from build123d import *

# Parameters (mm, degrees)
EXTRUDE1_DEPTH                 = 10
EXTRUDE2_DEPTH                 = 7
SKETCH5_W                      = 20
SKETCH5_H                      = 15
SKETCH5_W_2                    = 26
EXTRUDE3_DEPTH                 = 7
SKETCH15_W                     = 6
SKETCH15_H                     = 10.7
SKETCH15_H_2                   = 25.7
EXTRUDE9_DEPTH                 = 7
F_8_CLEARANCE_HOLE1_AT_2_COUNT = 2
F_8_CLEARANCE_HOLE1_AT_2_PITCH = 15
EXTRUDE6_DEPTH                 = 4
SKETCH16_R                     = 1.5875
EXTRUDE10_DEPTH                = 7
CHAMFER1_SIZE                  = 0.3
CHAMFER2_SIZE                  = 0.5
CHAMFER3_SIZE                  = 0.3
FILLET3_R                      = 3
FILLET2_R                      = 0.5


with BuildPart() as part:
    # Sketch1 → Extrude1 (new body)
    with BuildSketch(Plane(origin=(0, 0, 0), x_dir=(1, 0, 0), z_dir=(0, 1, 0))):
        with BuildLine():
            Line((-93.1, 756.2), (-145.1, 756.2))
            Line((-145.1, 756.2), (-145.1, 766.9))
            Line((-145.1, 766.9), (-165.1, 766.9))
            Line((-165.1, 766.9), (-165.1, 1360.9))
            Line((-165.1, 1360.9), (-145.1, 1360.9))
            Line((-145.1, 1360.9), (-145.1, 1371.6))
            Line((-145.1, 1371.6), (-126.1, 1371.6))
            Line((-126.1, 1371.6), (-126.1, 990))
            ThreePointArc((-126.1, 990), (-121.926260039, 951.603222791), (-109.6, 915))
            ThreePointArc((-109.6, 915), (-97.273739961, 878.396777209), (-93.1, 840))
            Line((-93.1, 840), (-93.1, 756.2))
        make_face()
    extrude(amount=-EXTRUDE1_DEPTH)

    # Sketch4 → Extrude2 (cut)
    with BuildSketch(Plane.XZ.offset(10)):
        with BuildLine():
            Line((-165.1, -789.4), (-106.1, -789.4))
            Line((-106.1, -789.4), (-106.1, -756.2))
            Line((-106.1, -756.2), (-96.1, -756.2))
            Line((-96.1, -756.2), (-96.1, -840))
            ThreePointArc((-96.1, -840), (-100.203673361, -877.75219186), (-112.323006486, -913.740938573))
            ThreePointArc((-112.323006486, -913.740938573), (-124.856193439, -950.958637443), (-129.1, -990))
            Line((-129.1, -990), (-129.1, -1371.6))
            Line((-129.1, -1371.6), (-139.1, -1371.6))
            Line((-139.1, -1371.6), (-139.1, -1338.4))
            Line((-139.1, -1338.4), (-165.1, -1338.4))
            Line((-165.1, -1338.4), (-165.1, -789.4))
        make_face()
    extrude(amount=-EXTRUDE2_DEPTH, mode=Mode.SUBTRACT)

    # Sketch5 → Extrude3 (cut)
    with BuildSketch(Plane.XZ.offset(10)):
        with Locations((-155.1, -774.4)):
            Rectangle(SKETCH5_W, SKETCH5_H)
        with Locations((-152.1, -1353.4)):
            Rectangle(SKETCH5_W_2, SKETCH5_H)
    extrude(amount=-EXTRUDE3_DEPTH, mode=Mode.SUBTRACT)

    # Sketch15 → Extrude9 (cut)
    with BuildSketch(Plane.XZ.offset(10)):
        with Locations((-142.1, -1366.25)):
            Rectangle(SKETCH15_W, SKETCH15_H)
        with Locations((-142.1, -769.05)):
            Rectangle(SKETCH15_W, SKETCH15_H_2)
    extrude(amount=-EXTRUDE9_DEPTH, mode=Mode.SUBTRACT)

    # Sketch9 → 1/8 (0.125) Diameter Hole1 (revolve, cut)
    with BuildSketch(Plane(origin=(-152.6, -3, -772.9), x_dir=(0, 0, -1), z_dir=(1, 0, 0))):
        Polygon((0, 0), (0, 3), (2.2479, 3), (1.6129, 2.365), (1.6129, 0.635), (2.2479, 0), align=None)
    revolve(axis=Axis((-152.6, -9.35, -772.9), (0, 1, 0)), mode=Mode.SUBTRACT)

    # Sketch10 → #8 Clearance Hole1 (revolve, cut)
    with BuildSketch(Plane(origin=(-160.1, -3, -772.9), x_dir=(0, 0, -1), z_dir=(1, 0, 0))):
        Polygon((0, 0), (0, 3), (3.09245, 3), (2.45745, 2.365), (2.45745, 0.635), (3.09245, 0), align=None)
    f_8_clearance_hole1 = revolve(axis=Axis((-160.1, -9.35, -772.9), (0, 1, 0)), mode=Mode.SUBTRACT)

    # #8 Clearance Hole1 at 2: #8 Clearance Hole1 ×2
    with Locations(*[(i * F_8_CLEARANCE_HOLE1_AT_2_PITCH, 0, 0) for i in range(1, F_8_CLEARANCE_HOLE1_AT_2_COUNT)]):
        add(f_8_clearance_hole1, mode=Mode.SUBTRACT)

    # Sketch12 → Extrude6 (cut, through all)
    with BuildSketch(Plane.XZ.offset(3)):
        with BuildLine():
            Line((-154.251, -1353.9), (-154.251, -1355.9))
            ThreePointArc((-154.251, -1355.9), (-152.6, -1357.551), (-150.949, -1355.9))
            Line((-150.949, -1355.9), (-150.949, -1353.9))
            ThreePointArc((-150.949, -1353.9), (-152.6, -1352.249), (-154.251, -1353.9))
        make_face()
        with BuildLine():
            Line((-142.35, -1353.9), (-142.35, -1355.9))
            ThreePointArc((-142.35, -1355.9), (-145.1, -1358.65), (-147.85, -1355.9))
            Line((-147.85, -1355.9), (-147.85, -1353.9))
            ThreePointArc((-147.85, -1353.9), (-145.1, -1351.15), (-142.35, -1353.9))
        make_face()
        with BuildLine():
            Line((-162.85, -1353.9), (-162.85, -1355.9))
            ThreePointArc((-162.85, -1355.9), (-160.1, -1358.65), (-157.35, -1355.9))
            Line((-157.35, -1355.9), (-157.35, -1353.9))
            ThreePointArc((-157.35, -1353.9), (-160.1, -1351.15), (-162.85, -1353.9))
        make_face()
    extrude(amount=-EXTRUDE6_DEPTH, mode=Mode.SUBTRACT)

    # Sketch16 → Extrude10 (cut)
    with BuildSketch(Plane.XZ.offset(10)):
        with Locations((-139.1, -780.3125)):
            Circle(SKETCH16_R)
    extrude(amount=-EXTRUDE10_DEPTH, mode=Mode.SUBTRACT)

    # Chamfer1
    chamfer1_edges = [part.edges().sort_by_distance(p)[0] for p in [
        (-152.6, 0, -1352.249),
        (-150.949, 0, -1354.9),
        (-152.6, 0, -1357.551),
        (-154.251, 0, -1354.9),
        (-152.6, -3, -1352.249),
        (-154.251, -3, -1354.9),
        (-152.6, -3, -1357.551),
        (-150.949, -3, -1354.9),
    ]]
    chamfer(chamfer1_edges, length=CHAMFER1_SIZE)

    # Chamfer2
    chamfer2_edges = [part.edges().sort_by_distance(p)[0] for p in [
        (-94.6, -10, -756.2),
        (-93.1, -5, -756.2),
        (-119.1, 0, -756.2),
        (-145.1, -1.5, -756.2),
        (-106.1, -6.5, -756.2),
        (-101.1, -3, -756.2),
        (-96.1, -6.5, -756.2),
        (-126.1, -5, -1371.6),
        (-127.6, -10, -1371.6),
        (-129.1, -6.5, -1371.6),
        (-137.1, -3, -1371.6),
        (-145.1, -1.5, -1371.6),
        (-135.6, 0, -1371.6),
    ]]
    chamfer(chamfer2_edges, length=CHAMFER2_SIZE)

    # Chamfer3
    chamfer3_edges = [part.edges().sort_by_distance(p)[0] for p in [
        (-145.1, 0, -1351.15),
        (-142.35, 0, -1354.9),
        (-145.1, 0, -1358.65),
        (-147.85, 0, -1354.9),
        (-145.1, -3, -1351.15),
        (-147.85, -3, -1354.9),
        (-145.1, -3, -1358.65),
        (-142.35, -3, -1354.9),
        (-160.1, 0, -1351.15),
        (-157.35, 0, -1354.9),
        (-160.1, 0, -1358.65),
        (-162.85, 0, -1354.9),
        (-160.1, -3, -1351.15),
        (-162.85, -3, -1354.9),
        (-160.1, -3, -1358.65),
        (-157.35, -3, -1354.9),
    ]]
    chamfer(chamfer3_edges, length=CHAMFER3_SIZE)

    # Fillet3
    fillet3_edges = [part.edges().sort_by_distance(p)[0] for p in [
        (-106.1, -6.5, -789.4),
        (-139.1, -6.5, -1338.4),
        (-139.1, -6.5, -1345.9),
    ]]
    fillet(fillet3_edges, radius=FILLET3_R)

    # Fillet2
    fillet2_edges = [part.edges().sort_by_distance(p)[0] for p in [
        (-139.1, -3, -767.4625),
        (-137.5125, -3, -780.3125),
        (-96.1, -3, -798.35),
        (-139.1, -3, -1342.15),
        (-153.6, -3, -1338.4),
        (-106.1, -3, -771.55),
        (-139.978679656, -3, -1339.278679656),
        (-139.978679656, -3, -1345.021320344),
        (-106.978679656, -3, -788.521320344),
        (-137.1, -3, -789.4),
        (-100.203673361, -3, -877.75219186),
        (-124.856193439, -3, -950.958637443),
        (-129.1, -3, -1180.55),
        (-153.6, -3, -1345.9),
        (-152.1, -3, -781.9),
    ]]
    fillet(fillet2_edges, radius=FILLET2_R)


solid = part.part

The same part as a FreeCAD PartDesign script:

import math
import FreeCAD as App
import Part
import Sketcher

V = App.Vector
Q = App.Units.Quantity


def edges_at(feature, points):
    """Names of the edges that pass closest to the given points."""
    edges = feature.Shape.Edges
    near = lambda p: min(range(len(edges)), key=lambda i: edges[i].distToShape(Part.Vertex(*p))[0])
    return sorted({f"Edge{near(p) + 1}" for p in points})


def add_polygon(sketch, points):
    """Adds a closed chain of lines whose ends are joined by coincident constraints."""
    first, n = sketch.GeometryCount, len(points)
    for a, b in zip(points, points[1:] + points[:1]):
        sketch.addGeometry(Part.LineSegment(App.Vector(*a, 0), App.Vector(*b, 0)), False)
    for i in range(n):
        sketch.addConstraint(Sketcher.Constraint("Coincident", first + i, 2, first + (i + 1) % n, 1))

doc = App.newDocument("Part")
params = doc.addObject("Spreadsheet::Sheet", "Params")
for row, (alias, value) in enumerate([
    ("sketch1_width", "52 mm"),
    ("sketch1_width2", "19 mm"),
    ("sketch1_width3", "20 mm"),
    ("sketch1_height", "594 mm"),
    ("sketch1_height2", "83.8 mm"),
    ("pad1_length", "10 mm"),
    ("sketch2_width", "59 mm"),
    ("sketch2_width2", "26 mm"),
    ("sketch2_width3", "10 mm"),
    ("sketch2_height", "549 mm"),
    ("sketch2_height2", "33.2 mm"),
    ("pocket1_length", "7 mm"),
    ("sketch3_width", "20 mm"),
    ("sketch3_width2", "26 mm"),
    ("sketch3_height", "15 mm"),
    ("pocket2_length", "7 mm"),
    ("sketch4_width", "6 mm"),
    ("sketch4_height", "10.7 mm"),
    ("sketch4_height2", "25.7 mm"),
    ("pocket3_length", "7 mm"),
    ("sketch5_width", "3 mm"),
    ("sketch5_width2", "1.73 mm"),
    ("groove_angle", "360 deg"),
    ("sketch6_width", "3 mm"),
    ("sketch6_width2", "1.73 mm"),
    ("groove2_angle", "360 deg"),
    ("linearpattern_pitch", "15 mm"),
    ("sketch7_height", "2 mm"),
    ("sketch7_radius", "2.75 mm"),
    ("pocket5_length", "7 mm"),
    ("chamfer_size", "0.3 mm"),
    ("chamfer2_size", "0.5 mm"),
    ("chamfer3_size", "0.3 mm"),
    ("fillet_radius", "3 mm"),
    ("fillet2_radius", "0.5 mm"),
], start=1):
    params.set(f"A{row}", alias)
    params.set(f"B{row}", "=" + value)
    params.setAlias(f"B{row}", alias)

body = doc.addObject("PartDesign::Body", "Body")

sketch1 = doc.addObject("Sketcher::SketchObject", "Sketch")
body.addObject(sketch1)
sketch1.AttachmentSupport = (doc.XZ_Plane, [""])
sketch1.MapMode = "FlatFace"
sketch1.addGeometry(Part.LineSegment(V(-145, -756, 0), V(-93, -756, 0)), False)
sketch1.addGeometry(Part.LineSegment(V(-93, -756, 0), V(-93, -840, 0)), False)
sketch1.addGeometry(Part.ArcOfCircle(Part.Circle(V(-272, -840, 0), V(0, 0, 1), 179), math.radians(-25), math.radians(0)), False)
sketch1.addGeometry(Part.ArcOfCircle(Part.Circle(V(53, -990, 0), V(0, 0, 1), 179), math.radians(155), math.radians(180)), False)
sketch1.addGeometry(Part.LineSegment(V(-126, -990, 0), V(-126, -1372, 0)), False)
sketch1.addGeometry(Part.LineSegment(V(-126, -1372, 0), V(-145, -1372, 0)), False)
sketch1.addGeometry(Part.LineSegment(V(-145, -1372, 0), V(-145, -1361, 0)), False)
sketch1.addGeometry(Part.LineSegment(V(-145, -1361, 0), V(-165, -1361, 0)), False)
sketch1.addGeometry(Part.LineSegment(V(-165, -1361, 0), V(-165, -767, 0)), False)
sketch1.addGeometry(Part.LineSegment(V(-165, -767, 0), V(-145, -767, 0)), False)
sketch1.addGeometry(Part.LineSegment(V(-145, -767, 0), V(-145, -756, 0)), False)
sketch1.addConstraint(Sketcher.Constraint("Coincident", 0, 2, 1, 1))
sketch1.addConstraint(Sketcher.Constraint("Tangent", 1, 2, 2, 2))
sketch1.addConstraint(Sketcher.Constraint("Tangent", 2, 1, 3, 1))
sketch1.addConstraint(Sketcher.Constraint("Tangent", 3, 2, 4, 1))
sketch1.addConstraint(Sketcher.Constraint("Coincident", 4, 2, 5, 1))
sketch1.addConstraint(Sketcher.Constraint("Coincident", 5, 2, 6, 1))
sketch1.addConstraint(Sketcher.Constraint("Coincident", 6, 2, 7, 1))
sketch1.addConstraint(Sketcher.Constraint("Coincident", 7, 2, 8, 1))
sketch1.addConstraint(Sketcher.Constraint("Coincident", 8, 2, 9, 1))
sketch1.addConstraint(Sketcher.Constraint("Coincident", 9, 2, 10, 1))
sketch1.addConstraint(Sketcher.Constraint("Coincident", 10, 2, 0, 1))
sketch1.addConstraint(Sketcher.Constraint("Horizontal", 0))
sketch1.addConstraint(Sketcher.Constraint("Vertical", 1))
sketch1.addConstraint(Sketcher.Constraint("Vertical", 4))
sketch1.addConstraint(Sketcher.Constraint("Horizontal", 5))
sketch1.addConstraint(Sketcher.Constraint("Vertical", 6))
sketch1.addConstraint(Sketcher.Constraint("Horizontal", 7))
sketch1.addConstraint(Sketcher.Constraint("Vertical", 8))
sketch1.addConstraint(Sketcher.Constraint("Horizontal", 9))
sketch1.addConstraint(Sketcher.Constraint("Vertical", 10))
sketch1.addConstraint(Sketcher.Constraint("Equal", 2, 3))
sketch1.addConstraint(Sketcher.Constraint("Vertical", 6, 2, 9, 2))
sketch1.addConstraint(Sketcher.Constraint("Equal", 6, 10))
sketch1.addConstraint(Sketcher.Constraint("DistanceX", 0, 1, 0, 2, Q("52 mm")))
sketch1.addConstraint(Sketcher.Constraint("DistanceX", 5, 2, 5, 1, Q("19 mm")))
sketch1.addConstraint(Sketcher.Constraint("DistanceX", 7, 2, 7, 1, Q("20 mm")))
sketch1.addConstraint(Sketcher.Constraint("DistanceY", 8, 1, 8, 2, Q("594 mm")))
sketch1.addConstraint(Sketcher.Constraint("DistanceY", 1, 2, 1, 1, Q("83.8 mm")))
sketch1.addConstraint(Sketcher.Constraint("DistanceY", 4, 2, 4, 1, Q("381.6 mm")))
sketch1.addConstraint(Sketcher.Constraint("DistanceY", 6, 1, 6, 2, Q("10.7 mm")))
sketch1.addConstraint(Sketcher.Constraint("DistanceY", 2, 3, -1, 1, Q("840 mm")))
sketch1.addConstraint(Sketcher.Constraint("DistanceX", 0, 2, -1, 1, Q("93.1 mm")))
sketch1.setExpression("Constraints[23]", "Params.sketch1_width")
sketch1.setExpression("Constraints[24]", "Params.sketch1_width2")
sketch1.setExpression("Constraints[25]", "Params.sketch1_width3")
sketch1.setExpression("Constraints[26]", "Params.sketch1_height")
sketch1.setExpression("Constraints[27]", "Params.sketch1_height2")
pad1 = doc.addObject("PartDesign::Pad", "Pad")
body.addObject(pad1)
pad1.Profile = sketch1
pad1.setExpression("Length", "Params.pad1_length")

sketch2 = doc.addObject("Sketcher::SketchObject", "Sketch001")
body.addObject(sketch2)
sketch2.AttachmentSupport = (doc.XZ_Plane, [""])
sketch2.MapMode = "FlatFace"
sketch2.AttachmentOffset = App.Placement(V(0, 0, 10), App.Rotation())
sketch2.addGeometry(Part.LineSegment(V(-106, -789, 0), V(-165, -789, 0)), False)
sketch2.addGeometry(Part.LineSegment(V(-165, -789, 0), V(-165, -1338, 0)), False)
sketch2.addGeometry(Part.LineSegment(V(-165, -1338, 0), V(-139, -1338, 0)), False)
sketch2.addGeometry(Part.LineSegment(V(-139, -1338, 0), V(-139, -1372, 0)), False)
sketch2.addGeometry(Part.LineSegment(V(-139, -1372, 0), V(-129, -1372, 0)), False)
sketch2.addGeometry(Part.LineSegment(V(-129, -1372, 0), V(-129, -990, 0)), False)
sketch2.addGeometry(Part.ArcOfCircle(Part.Circle(V(53, -990, 0), V(0, 0, 1), 182), math.radians(155), math.radians(180)), False)
sketch2.addGeometry(Part.ArcOfCircle(Part.Circle(V(-272, -840, 0), V(0, 0, 1), 176), math.radians(-25), math.radians(0)), False)
sketch2.addGeometry(Part.LineSegment(V(-96, -840, 0), V(-96, -756, 0)), False)
sketch2.addGeometry(Part.LineSegment(V(-96, -756, 0), V(-106, -756, 0)), False)
sketch2.addGeometry(Part.LineSegment(V(-106, -756, 0), V(-106, -789, 0)), False)
sketch2.addConstraint(Sketcher.Constraint("Coincident", 0, 2, 1, 1))
sketch2.addConstraint(Sketcher.Constraint("Coincident", 1, 2, 2, 1))
sketch2.addConstraint(Sketcher.Constraint("Coincident", 2, 2, 3, 1))
sketch2.addConstraint(Sketcher.Constraint("Coincident", 3, 2, 4, 1))
sketch2.addConstraint(Sketcher.Constraint("Coincident", 4, 2, 5, 1))
sketch2.addConstraint(Sketcher.Constraint("Tangent", 5, 2, 6, 2))
sketch2.addConstraint(Sketcher.Constraint("Tangent", 6, 1, 7, 1))
sketch2.addConstraint(Sketcher.Constraint("Tangent", 7, 2, 8, 1))
sketch2.addConstraint(Sketcher.Constraint("Coincident", 8, 2, 9, 1))
sketch2.addConstraint(Sketcher.Constraint("Coincident", 9, 2, 10, 1))
sketch2.addConstraint(Sketcher.Constraint("Coincident", 10, 2, 0, 1))
sketch2.addConstraint(Sketcher.Constraint("Horizontal", 0))
sketch2.addConstraint(Sketcher.Constraint("Vertical", 1))
sketch2.addConstraint(Sketcher.Constraint("Horizontal", 2))
sketch2.addConstraint(Sketcher.Constraint("Vertical", 3))
sketch2.addConstraint(Sketcher.Constraint("Horizontal", 4))
sketch2.addConstraint(Sketcher.Constraint("Vertical", 5))
sketch2.addConstraint(Sketcher.Constraint("Vertical", 8))
sketch2.addConstraint(Sketcher.Constraint("Horizontal", 9))
sketch2.addConstraint(Sketcher.Constraint("Vertical", 10))
sketch2.addConstraint(Sketcher.Constraint("Equal", 4, 9))
sketch2.addConstraint(Sketcher.Constraint("Equal", 3, 10))
sketch2.addConstraint(Sketcher.Constraint("DistanceX", 0, 2, 0, 1, Q("59 mm")))
sketch2.addConstraint(Sketcher.Constraint("DistanceX", 2, 1, 2, 2, Q("26 mm")))
sketch2.addConstraint(Sketcher.Constraint("DistanceX", 4, 1, 4, 2, Q("10 mm")))
sketch2.addConstraint(Sketcher.Constraint("DistanceY", 1, 2, 1, 1, Q("549 mm")))
sketch2.addConstraint(Sketcher.Constraint("DistanceY", 3, 2, 3, 1, Q("33.2 mm")))
sketch2.addConstraint(Sketcher.Constraint("DistanceY", 5, 1, 5, 2, Q("381.6 mm")))
sketch2.addConstraint(Sketcher.Constraint("DistanceY", 8, 1, 8, 2, Q("83.8 mm")))
sketch2.addConstraint(Sketcher.Constraint("DistanceY", 6, 3, -1, 1, Q("990 mm")))
sketch2.addConstraint(Sketcher.Constraint("DistanceX", 0, 2, -1, 1, Q("165.1 mm")))
sketch2.addConstraint(Sketcher.Constraint("Radius", 6, Q("181.704545 mm")))
sketch2.setExpression("Constraints[22]", "Params.sketch2_width")
sketch2.setExpression("Constraints[23]", "Params.sketch2_width2")
sketch2.setExpression("Constraints[24]", "Params.sketch2_width3")
sketch2.setExpression("Constraints[25]", "Params.sketch2_height")
sketch2.setExpression("Constraints[26]", "Params.sketch2_height2")
pocket1 = doc.addObject("PartDesign::Pocket", "Pocket")
body.addObject(pocket1)
pocket1.Profile = sketch2
pocket1.setExpression("Length", "Params.pocket1_length")

sketch3 = doc.addObject("Sketcher::SketchObject", "Sketch002")
body.addObject(sketch3)
sketch3.AttachmentSupport = (doc.XZ_Plane, [""])
sketch3.MapMode = "FlatFace"
sketch3.AttachmentOffset = App.Placement(V(0, 0, 10), App.Rotation())
add_polygon(sketch3, [(-165, -767), (-165, -782), (-145, -782), (-145, -767)])
add_polygon(sketch3, [(-165, -1346), (-165, -1361), (-139, -1361), (-139, -1346)])
sketch3.addConstraint(Sketcher.Constraint("Vertical", 0))
sketch3.addConstraint(Sketcher.Constraint("Horizontal", 1))
sketch3.addConstraint(Sketcher.Constraint("Vertical", 2))
sketch3.addConstraint(Sketcher.Constraint("Horizontal", 3))
sketch3.addConstraint(Sketcher.Constraint("Vertical", 4))
sketch3.addConstraint(Sketcher.Constraint("Horizontal", 5))
sketch3.addConstraint(Sketcher.Constraint("Vertical", 6))
sketch3.addConstraint(Sketcher.Constraint("Horizontal", 7))
sketch3.addConstraint(Sketcher.Constraint("Vertical", 3, 2, 4, 2))
sketch3.addConstraint(Sketcher.Constraint("Equal", 2, 4))
sketch3.addConstraint(Sketcher.Constraint("DistanceX", 1, 1, 1, 2, Q("20 mm")))
sketch3.addConstraint(Sketcher.Constraint("DistanceX", 5, 1, 5, 2, Q("26 mm")))
sketch3.addConstraint(Sketcher.Constraint("DistanceY", 0, 2, 0, 1, Q("15 mm")))
sketch3.addConstraint(Sketcher.Constraint("DistanceY", 4, 2, 0, 2, Q("579 mm")))
sketch3.addConstraint(Sketcher.Constraint("DistanceX", 0, 2, -1, 1, Q("165.1 mm")))
sketch3.addConstraint(Sketcher.Constraint("DistanceY", 0, 2, -1, 1, Q("781.9 mm")))
sketch3.setExpression("Constraints[18]", "Params.sketch3_width")
sketch3.setExpression("Constraints[19]", "Params.sketch3_width2")
sketch3.setExpression("Constraints[20]", "Params.sketch3_height")
pocket2 = doc.addObject("PartDesign::Pocket", "Pocket001")
body.addObject(pocket2)
pocket2.Profile = sketch3
pocket2.setExpression("Length", "Params.pocket2_length")

sketch4 = doc.addObject("Sketcher::SketchObject", "Sketch003")
body.addObject(sketch4)
sketch4.AttachmentSupport = (doc.XZ_Plane, [""])
sketch4.MapMode = "FlatFace"
sketch4.AttachmentOffset = App.Placement(V(0, 0, 10), App.Rotation())
add_polygon(sketch4, [(-145, -1361), (-145, -1372), (-139, -1372), (-139, -1361)])
add_polygon(sketch4, [(-145, -756), (-145, -782), (-139, -782), (-139, -756)])
sketch4.addConstraint(Sketcher.Constraint("Vertical", 0))
sketch4.addConstraint(Sketcher.Constraint("Horizontal", 1))
sketch4.addConstraint(Sketcher.Constraint("Vertical", 2))
sketch4.addConstraint(Sketcher.Constraint("Horizontal", 3))
sketch4.addConstraint(Sketcher.Constraint("Vertical", 4))
sketch4.addConstraint(Sketcher.Constraint("Horizontal", 5))
sketch4.addConstraint(Sketcher.Constraint("Vertical", 6))
sketch4.addConstraint(Sketcher.Constraint("Horizontal", 7))
sketch4.addConstraint(Sketcher.Constraint("Vertical", 3, 2, 4, 2))
sketch4.addConstraint(Sketcher.Constraint("Vertical", 2, 2, 5, 2))
sketch4.addConstraint(Sketcher.Constraint("DistanceX", 1, 1, 1, 2, Q("6 mm")))
sketch4.addConstraint(Sketcher.Constraint("DistanceY", 0, 2, 0, 1, Q("10.7 mm")))
sketch4.addConstraint(Sketcher.Constraint("DistanceY", 4, 2, 4, 1, Q("25.7 mm")))
sketch4.addConstraint(Sketcher.Constraint("DistanceY", 3, 2, 4, 2, Q("579 mm")))
sketch4.addConstraint(Sketcher.Constraint("DistanceX", 0, 2, -1, 1, Q("145.1 mm")))
sketch4.addConstraint(Sketcher.Constraint("DistanceY", 0, 2, -1, 1, Q("1371.6 mm")))
sketch4.setExpression("Constraints[18]", "Params.sketch4_width")
sketch4.setExpression("Constraints[19]", "Params.sketch4_height")
sketch4.setExpression("Constraints[20]", "Params.sketch4_height2")
pocket3 = doc.addObject("PartDesign::Pocket", "Pocket002")
body.addObject(pocket3)
pocket3.Profile = sketch4
pocket3.setExpression("Length", "Params.pocket3_length")

sketch5 = doc.addObject("Sketcher::SketchObject", "Sketch004")
body.addObject(sketch5)
sketch5.AttachmentSupport = (doc.YZ_Plane, [""])
sketch5.MapMode = "FlatFace"
sketch5.AttachmentOffset = App.Placement(V(0, 0, -152.6), App.Rotation())
add_polygon(sketch5, [(0, -772.9), (-3, -772.9), (-3, -775.1), (-2.4, -774.5), (-0.6, -774.5), (0, -775.1)])
sketch5.addGeometry(Part.LineSegment(V(-3, -772.9, 0), V(0, -772.9, 0)), True)
sketch5.addConstraint(Sketcher.Constraint("Horizontal", 0))
sketch5.addConstraint(Sketcher.Constraint("Vertical", 1))
sketch5.addConstraint(Sketcher.Constraint("Horizontal", 3))
sketch5.addConstraint(Sketcher.Constraint("Vertical", 5))
sketch5.addConstraint(Sketcher.Constraint("Horizontal", 6))
sketch5.addConstraint(Sketcher.Constraint("Coincident", 6, 1, 0, 2))
sketch5.addConstraint(Sketcher.Constraint("PointOnObject", 4, 2, -2))
sketch5.addConstraint(Sketcher.Constraint("PointOnObject", 6, 2, -2))
sketch5.addConstraint(Sketcher.Constraint("Perpendicular", 2, 4))
sketch5.addConstraint(Sketcher.Constraint("Horizontal", 1, 2, 4, 2))
sketch5.addConstraint(Sketcher.Constraint("Equal", 2, 4))
sketch5.addConstraint(Sketcher.Constraint("DistanceX", 0, 2, 0, 1, Q("3 mm")))
sketch5.addConstraint(Sketcher.Constraint("DistanceX", 3, 1, 3, 2, Q("1.73 mm")))
sketch5.addConstraint(Sketcher.Constraint("DistanceY", 0, 2, -1, 1, Q("772.9 mm")))
sketch5.addConstraint(Sketcher.Constraint("DistanceY", 1, 2, 1, 1, Q("2.2479 mm")))
sketch5.setExpression("Constraints[17]", "Params.sketch5_width")
sketch5.setExpression("Constraints[18]", "Params.sketch5_width2")
groove = doc.addObject("PartDesign::Groove", "Groove")
body.addObject(groove)
groove.Profile = sketch5
groove.ReferenceAxis = (sketch5, ["Axis0"])
groove.setExpression("Angle", "Params.groove_angle")

sketch6 = doc.addObject("Sketcher::SketchObject", "Sketch005")
body.addObject(sketch6)
sketch6.AttachmentSupport = (doc.YZ_Plane, [""])
sketch6.MapMode = "FlatFace"
sketch6.AttachmentOffset = App.Placement(V(0, 0, -160.1), App.Rotation())
add_polygon(sketch6, [(0, -772.9), (-3, -772.9), (-3, -776), (-2.4, -775.4), (-0.6, -775.4), (0, -776)])
sketch6.addGeometry(Part.LineSegment(V(-3, -772.9, 0), V(0, -772.9, 0)), True)
sketch6.addConstraint(Sketcher.Constraint("Horizontal", 0))
sketch6.addConstraint(Sketcher.Constraint("Vertical", 1))
sketch6.addConstraint(Sketcher.Constraint("Horizontal", 3))
sketch6.addConstraint(Sketcher.Constraint("Vertical", 5))
sketch6.addConstraint(Sketcher.Constraint("Horizontal", 6))
sketch6.addConstraint(Sketcher.Constraint("Coincident", 6, 1, 0, 2))
sketch6.addConstraint(Sketcher.Constraint("PointOnObject", 4, 2, -2))
sketch6.addConstraint(Sketcher.Constraint("PointOnObject", 6, 2, -2))
sketch6.addConstraint(Sketcher.Constraint("Perpendicular", 2, 4))
sketch6.addConstraint(Sketcher.Constraint("Horizontal", 1, 2, 4, 2))
sketch6.addConstraint(Sketcher.Constraint("Equal", 2, 4))
sketch6.addConstraint(Sketcher.Constraint("DistanceX", 0, 2, 0, 1, Q("3 mm")))
sketch6.addConstraint(Sketcher.Constraint("DistanceX", 3, 1, 3, 2, Q("1.73 mm")))
sketch6.addConstraint(Sketcher.Constraint("DistanceY", 0, 2, -1, 1, Q("772.9 mm")))
sketch6.addConstraint(Sketcher.Constraint("DistanceY", 1, 2, 1, 1, Q("3.09245 mm")))
sketch6.setExpression("Constraints[17]", "Params.sketch6_width")
sketch6.setExpression("Constraints[18]", "Params.sketch6_width2")
groove2 = doc.addObject("PartDesign::Groove", "Groove001")
body.addObject(groove2)
groove2.Profile = sketch6
groove2.ReferenceAxis = (sketch6, ["Axis0"])
groove2.setExpression("Angle", "Params.groove2_angle")
doc.recompute()

linearpattern = doc.addObject("PartDesign::LinearPattern", "LinearPattern")
body.addObject(linearpattern)
linearpattern.Originals = [groove2]
linearpattern.Direction = (doc.X_Axis, [""])
linearpattern.Mode = "offset"
linearpattern.setExpression("Offset", "Params.linearpattern_pitch")
linearpattern.Occurrences = 2
body.Tip = linearpattern

sketch7 = doc.addObject("Sketcher::SketchObject", "Sketch006")
body.addObject(sketch7)
sketch7.AttachmentSupport = (doc.XZ_Plane, [""])
sketch7.MapMode = "FlatFace"
sketch7.AttachmentOffset = App.Placement(V(0, 0, 3), App.Rotation())
sketch7.addGeometry(Part.LineSegment(V(-154.251, -1353.9, 0), V(-154.251, -1355.9, 0)), False)
sketch7.addGeometry(Part.ArcOfCircle(Part.Circle(V(-152.6, -1355.9, 0), V(0, 0, 1), 1.651), math.radians(180), math.radians(360)), False)
sketch7.addGeometry(Part.LineSegment(V(-150.949, -1355.9, 0), V(-150.949, -1353.9, 0)), False)
sketch7.addGeometry(Part.ArcOfCircle(Part.Circle(V(-152.6, -1353.9, 0), V(0, 0, 1), 1.651), math.radians(0), math.radians(180)), False)
sketch7.addGeometry(Part.LineSegment(V(-142.35, -1355.9, 0), V(-142.35, -1353.9, 0)), False)
sketch7.addGeometry(Part.ArcOfCircle(Part.Circle(V(-145.1, -1353.9, 0), V(0, 0, 1), 2.75), math.radians(0), math.radians(180)), False)
sketch7.addGeometry(Part.LineSegment(V(-147.85, -1353.9, 0), V(-147.85, -1355.9, 0)), False)
sketch7.addGeometry(Part.ArcOfCircle(Part.Circle(V(-145.1, -1355.9, 0), V(0, 0, 1), 2.75), math.radians(180), math.radians(360)), False)
sketch7.addGeometry(Part.LineSegment(V(-162.85, -1353.9, 0), V(-162.85, -1355.9, 0)), False)
sketch7.addGeometry(Part.ArcOfCircle(Part.Circle(V(-160.1, -1355.9, 0), V(0, 0, 1), 2.75), math.radians(180), math.radians(360)), False)
sketch7.addGeometry(Part.LineSegment(V(-157.35, -1355.9, 0), V(-157.35, -1353.9, 0)), False)
sketch7.addGeometry(Part.ArcOfCircle(Part.Circle(V(-160.1, -1353.9, 0), V(0, 0, 1), 2.75), math.radians(0), math.radians(180)), False)
sketch7.addConstraint(Sketcher.Constraint("Tangent", 0, 2, 1, 1))
sketch7.addConstraint(Sketcher.Constraint("Tangent", 1, 2, 2, 1))
sketch7.addConstraint(Sketcher.Constraint("Tangent", 2, 2, 3, 1))
sketch7.addConstraint(Sketcher.Constraint("Tangent", 3, 2, 0, 1))
sketch7.addConstraint(Sketcher.Constraint("Tangent", 4, 2, 5, 1))
sketch7.addConstraint(Sketcher.Constraint("Tangent", 5, 2, 6, 1))
sketch7.addConstraint(Sketcher.Constraint("Tangent", 6, 2, 7, 1))
sketch7.addConstraint(Sketcher.Constraint("Tangent", 7, 2, 4, 1))
sketch7.addConstraint(Sketcher.Constraint("Tangent", 8, 2, 9, 1))
sketch7.addConstraint(Sketcher.Constraint("Tangent", 9, 2, 10, 1))
sketch7.addConstraint(Sketcher.Constraint("Tangent", 10, 2, 11, 1))
sketch7.addConstraint(Sketcher.Constraint("Tangent", 11, 2, 8, 1))
sketch7.addConstraint(Sketcher.Constraint("Vertical", 0))
sketch7.addConstraint(Sketcher.Constraint("Vertical", 2))
sketch7.addConstraint(Sketcher.Constraint("Vertical", 4))
sketch7.addConstraint(Sketcher.Constraint("Vertical", 6))
sketch7.addConstraint(Sketcher.Constraint("Vertical", 8))
sketch7.addConstraint(Sketcher.Constraint("Vertical", 10))
sketch7.addConstraint(Sketcher.Constraint("Equal", 7, 9))
sketch7.addConstraint(Sketcher.Constraint("Horizontal", 3, 3, 5, 3))
sketch7.addConstraint(Sketcher.Constraint("Horizontal", 1, 3, 7, 3))
sketch7.addConstraint(Sketcher.Constraint("Horizontal", 7, 3, 9, 3))
sketch7.addConstraint(Sketcher.Constraint("Horizontal", 5, 3, 11, 3))
sketch7.addConstraint(Sketcher.Constraint("DistanceY", 0, 2, 0, 1, Q("2 mm")))
sketch7.addConstraint(Sketcher.Constraint("Radius", 5, Q("2.75 mm")))
sketch7.addConstraint(Sketcher.Constraint("Radius", 1, Q("1.651 mm")))
sketch7.addConstraint(Sketcher.Constraint("DistanceX", 9, 3, 7, 3, Q("15 mm")))
sketch7.addConstraint(Sketcher.Constraint("DistanceX", 1, 3, -1, 1, Q("152.6 mm")))
sketch7.addConstraint(Sketcher.Constraint("DistanceY", 1, 3, -1, 1, Q("1355.9 mm")))
sketch7.addConstraint(Sketcher.Constraint("DistanceX", 5, 3, -1, 1, Q("145.1 mm")))
sketch7.setExpression("Constraints[23]", "Params.sketch7_height")
sketch7.setExpression("Constraints[24]", "Params.sketch7_radius")
pocket4 = doc.addObject("PartDesign::Pocket", "Pocket003")
body.addObject(pocket4)
pocket4.Profile = sketch7
pocket4.Type = "ThroughAll"

sketch8 = doc.addObject("Sketcher::SketchObject", "Sketch007")
body.addObject(sketch8)
sketch8.AttachmentSupport = (doc.XZ_Plane, [""])
sketch8.MapMode = "FlatFace"
sketch8.AttachmentOffset = App.Placement(V(0, 0, 10), App.Rotation())
sketch8.addGeometry(Part.Circle(V(-139.1, -780.3, 0), V(0, 0, 1), 1.6), False)
sketch8.addConstraint(Sketcher.Constraint("Diameter", 0, Q("3.175 mm")))
sketch8.addConstraint(Sketcher.Constraint("DistanceX", 0, 3, -1, 1, Q("139.1 mm")))
sketch8.addConstraint(Sketcher.Constraint("DistanceY", 0, 3, -1, 1, Q("780.3125 mm")))
pocket5 = doc.addObject("PartDesign::Pocket", "Pocket004")
body.addObject(pocket5)
pocket5.Profile = sketch8
pocket5.setExpression("Length", "Params.pocket5_length")
doc.recompute()

chamfer = doc.addObject("PartDesign::Chamfer", "Chamfer")
body.addObject(chamfer)
chamfer.Base = (pocket5, edges_at(pocket5, [
    (-152.6, 0, -1352.249),
    (-150.949, 0, -1354.9),
    (-152.6, 0, -1357.551),
    (-154.251, 0, -1354.9),
    (-152.6, -3, -1352.249),
    (-154.251, -3, -1354.9),
    (-152.6, -3, -1357.551),
    (-150.949, -3, -1354.9),
]))
chamfer.setExpression("Size", "Params.chamfer_size")
doc.recompute()

chamfer2 = doc.addObject("PartDesign::Chamfer", "Chamfer001")
body.addObject(chamfer2)
chamfer2.Base = (chamfer, edges_at(chamfer, [
    (-94.6, -10, -756.2),
    (-93.1, -5, -756.2),
    (-119.1, 0, -756.2),
    (-145.1, -1.5, -756.2),
    (-106.1, -6.5, -756.2),
    (-101.1, -3, -756.2),
    (-96.1, -6.5, -756.2),
    (-126.1, -5, -1371.6),
    (-127.6, -10, -1371.6),
    (-129.1, -6.5, -1371.6),
    (-137.1, -3, -1371.6),
    (-145.1, -1.5, -1371.6),
    (-135.6, 0, -1371.6),
]))
chamfer2.setExpression("Size", "Params.chamfer2_size")
doc.recompute()

chamfer3 = doc.addObject("PartDesign::Chamfer", "Chamfer002")
body.addObject(chamfer3)
chamfer3.Base = (chamfer2, edges_at(chamfer2, [
    (-145.1, 0, -1351.15),
    (-142.35, 0, -1354.9),
    (-145.1, 0, -1358.65),
    (-147.85, 0, -1354.9),
    (-145.1, -3, -1351.15),
    (-147.85, -3, -1354.9),
    (-145.1, -3, -1358.65),
    (-142.35, -3, -1354.9),
    (-160.1, 0, -1351.15),
    (-157.35, 0, -1354.9),
    (-160.1, 0, -1358.65),
    (-162.85, 0, -1354.9),
    (-160.1, -3, -1351.15),
    (-162.85, -3, -1354.9),
    (-160.1, -3, -1358.65),
    (-157.35, -3, -1354.9),
]))
chamfer3.setExpression("Size", "Params.chamfer3_size")
doc.recompute()

fillet = doc.addObject("PartDesign::Fillet", "Fillet")
body.addObject(fillet)
fillet.Base = (chamfer3, edges_at(chamfer3, [(-106.1, -6.5, -789.4), (-139.1, -6.5, -1338.4), (-139.1, -6.5, -1345.9)]))
fillet.setExpression("Radius", "Params.fillet_radius")
doc.recompute()

fillet2 = doc.addObject("PartDesign::Fillet", "Fillet001")
body.addObject(fillet2)
fillet2.Base = (fillet, edges_at(fillet, [
    (-139.1, -3, -767.462),
    (-137.512, -3, -780.312),
    (-96.1, -3, -798.35),
    (-139.1, -3, -1342.15),
    (-153.6, -3, -1338.4),
    (-106.1, -3, -771.55),
    (-139.979, -3, -1339.279),
    (-139.979, -3, -1345.021),
    (-106.979, -3, -788.521),
    (-137.1, -3, -789.4),
    (-100.204, -3, -877.752),
    (-124.856, -3, -950.959),
    (-129.1, -3, -1180.55),
    (-153.6, -3, -1345.9),
    (-152.1, -3, -781.9),
]))
fillet2.setExpression("Radius", "Params.fillet2_radius")

doc.recompute()
